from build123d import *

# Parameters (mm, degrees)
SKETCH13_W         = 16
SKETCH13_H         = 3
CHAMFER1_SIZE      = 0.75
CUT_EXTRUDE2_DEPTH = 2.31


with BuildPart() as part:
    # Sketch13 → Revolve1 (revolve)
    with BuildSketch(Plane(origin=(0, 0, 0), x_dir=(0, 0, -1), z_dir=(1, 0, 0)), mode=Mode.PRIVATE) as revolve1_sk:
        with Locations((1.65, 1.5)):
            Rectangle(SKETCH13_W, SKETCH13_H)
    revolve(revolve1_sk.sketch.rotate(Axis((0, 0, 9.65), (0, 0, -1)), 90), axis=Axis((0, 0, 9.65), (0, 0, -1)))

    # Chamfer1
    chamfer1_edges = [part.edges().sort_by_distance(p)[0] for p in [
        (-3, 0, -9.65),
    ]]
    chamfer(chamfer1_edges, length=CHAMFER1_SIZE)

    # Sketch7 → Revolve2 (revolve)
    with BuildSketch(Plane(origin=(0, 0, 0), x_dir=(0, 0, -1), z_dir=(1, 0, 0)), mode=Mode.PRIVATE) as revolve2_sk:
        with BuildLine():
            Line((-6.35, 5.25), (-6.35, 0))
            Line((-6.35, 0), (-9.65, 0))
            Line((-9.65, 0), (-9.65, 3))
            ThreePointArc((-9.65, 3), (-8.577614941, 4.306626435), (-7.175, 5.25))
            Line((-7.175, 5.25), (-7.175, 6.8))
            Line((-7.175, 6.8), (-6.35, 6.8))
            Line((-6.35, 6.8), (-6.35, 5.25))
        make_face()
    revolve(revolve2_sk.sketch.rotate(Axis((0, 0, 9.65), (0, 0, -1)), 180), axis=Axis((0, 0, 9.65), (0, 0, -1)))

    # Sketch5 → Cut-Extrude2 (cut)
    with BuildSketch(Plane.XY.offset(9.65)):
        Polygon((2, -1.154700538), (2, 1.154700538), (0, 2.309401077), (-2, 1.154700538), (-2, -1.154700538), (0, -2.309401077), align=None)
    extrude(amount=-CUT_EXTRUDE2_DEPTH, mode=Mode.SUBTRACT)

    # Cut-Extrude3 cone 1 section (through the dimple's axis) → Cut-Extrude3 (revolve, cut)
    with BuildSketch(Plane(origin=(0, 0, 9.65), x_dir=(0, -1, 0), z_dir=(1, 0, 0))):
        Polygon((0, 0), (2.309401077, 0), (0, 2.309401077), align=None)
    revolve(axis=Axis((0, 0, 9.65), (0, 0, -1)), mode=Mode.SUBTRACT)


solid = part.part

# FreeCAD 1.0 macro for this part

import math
import FreeCAD as App
import Part
import Sketcher

V = App.Vector
Q = App.Units.Quantity


def edges_at(feature, points):
    """Names of the edges that pass closest to the given points."""
    edges = feature.Shape.Edges
    near = lambda p: min(range(len(edges)), key=lambda i: edges[i].distToShape(Part.Vertex(*p))[0])
    return sorted({f"Edge{near(p) + 1}" for p in points})


def add_polygon(sketch, points):
    """Adds a closed chain of lines whose ends are joined by coincident constraints."""
    first, n = sketch.GeometryCount, len(points)
    for a, b in zip(points, points[1:] + points[:1]):
        sketch.addGeometry(Part.LineSegment(App.Vector(*a, 0), App.Vector(*b, 0)), False)
    for i in range(n):
        sketch.addConstraint(Sketcher.Constraint("Coincident", first + i, 2, first + (i + 1) % n, 1))

doc = App.newDocument("Part")
body = doc.addObject("PartDesign::Body", "Body")

sketch1 = doc.addObject("Sketcher::SketchObject", "Sketch")
body.addObject(sketch1)
sketch1.AttachmentSupport = (doc.YZ_Plane, [""])
sketch1.MapMode = "FlatFace"
add_polygon(sketch1, [(3, 6.3), (0, 6.3), (0, -9.7), (3, -9.7)])
sketch1.addConstraint([
    Sketcher.Constraint("Horizontal", 0),
    Sketcher.Constraint("Vertical", 1),
    Sketcher.Constraint("Horizontal", 2),
    Sketcher.Constraint("Vertical", 3),
    Sketcher.Constraint("PointOnObject", 0, 2, -2),
    Sketcher.Constraint("DistanceX", 0, 2, 0, 1, 3.0),
    Sketcher.Constraint("DistanceY", 1, 2, 1, 1, 16.0),
    Sketcher.Constraint("DistanceY", -1, 1, 0, 2, 6.35),
])
revolution = doc.addObject("PartDesign::Revolution", "Revolution")
body.addObject(revolution)
revolution.Profile = sketch1
revolution.ReferenceAxis = (sketch1, ["V_Axis"])
revolution.Angle = 360
doc.recompute()

chamfer = doc.addObject("PartDesign::Chamfer", "Chamfer")
body.addObject(chamfer)
chamfer.Base = (revolution, edges_at(revolution, [(-3, 0, -9.65)]))
chamfer.Size = 0.75

sketch2 = doc.addObject("Sketcher::SketchObject", "Sketch001")
body.addObject(sketch2)
sketch2.AttachmentSupport = (doc.YZ_Plane, [""])
sketch2.MapMode = "FlatFace"
sketch2.addGeometry([
    Part.LineSegment(V(0, 9.7, 0), V(0, 6.3, 0)),
    Part.LineSegment(V(0, 6.3, 0), V(6.8, 6.3, 0)),
    Part.LineSegment(V(6.8, 6.3, 0), V(6.8, 7.2, 0)),
    Part.LineSegment(V(6.8, 7.2, 0), V(5.2, 7.2, 0)),
    Part.ArcOfCircle(Part.Circle(V(0, 4.7, 0), V(0, 0, 1), 5.8), math.radians(26), math.radians(59)),
    Part.LineSegment(V(3, 9.7, 0), V(0, 9.7, 0)),
], False)
sketch2.addConstraint([
    Sketcher.Constraint("Coincident", 0, 2, 1, 1),
    Sketcher.Constraint("Coincident", 1, 2, 2, 1),
    Sketcher.Constraint("Coincident", 2, 2, 3, 1),
    Sketcher.Constraint("Coincident", 3, 2, 4, 1),
    Sketcher.Constraint("Coincident", 4, 2, 5, 1),
    Sketcher.Constraint("Coincident", 5, 2, 0, 1),
    Sketcher.Constraint("Vertical", 0),
    Sketcher.Constraint("Horizontal", 1),
    Sketcher.Constraint("Vertical", 2),
    Sketcher.Constraint("Horizontal", 3),
    Sketcher.Constraint("Horizontal", 5),
    Sketcher.Constraint("PointOnObject", 4, 3, -2),
    Sketcher.Constraint("PointOnObject", 0, 2, -2),
    Sketcher.Constraint("DistanceX", 5, 2, 5, 1, 3.0),
    Sketcher.Constraint("DistanceX", 1, 1, 1, 2, 6.8),
    Sketcher.Constraint("DistanceY", 0, 2, 0, 1, 3.3),
    Sketcher.Constraint("DistanceX", 3, 2, 3, 1, 1.55),
    Sketcher.Constraint("DistanceY", 2, 1, 2, 2, 0.825),
    Sketcher.Constraint("DistanceY", -1, 1, 0, 2, 6.35),
])
revolution2 = doc.addObject("PartDesign::Revolution", "Revolution001")
body.addObject(revolution2)
revolution2.Profile = sketch2
revolution2.ReferenceAxis = (sketch2, ["V_Axis"])
revolution2.Angle = 360

sketch3 = doc.addObject("Sketcher::SketchObject", "Sketch002")
body.addObject(sketch3)
sketch3.AttachmentSupport = (doc.XY_Plane, [""])
sketch3.MapMode = "FlatFace"
sketch3.AttachmentOffset = App.Placement(V(0, 0, 9.65), App.Rotation())
add_polygon(sketch3, [(2, -1.2), (2, 1.2), (0, 2.3), (-2, 1.2), (-2, -1.2), (0, -2.3)])
sketch3.addConstraint([
    Sketcher.Constraint("Vertical", 0),
    Sketcher.Constraint("Vertical", 3),
    Sketcher.Constraint("Symmetric", 0, 2, 3, 2, -1, 1),
    Sketcher.Constraint("Symmetric", 1, 2, 4, 2, -1, 1),
    Sketcher.Constraint("PointOnObject", 1, 2, -2),
    Sketcher.Constraint("Parallel", 2, 5),
    Sketcher.Constraint("Horizontal", 0, 2, 2, 2),
    Sketcher.Constraint("Angle", 1, Q("150 deg")),
    Sketcher.Constraint("DistanceX", -1, 1, 0, 2, 2.0),
    Sketcher.Constraint("DistanceY", 0, 1, 0, 2, 2.309401),
])
pocket1 = doc.addObject("PartDesign::Pocket", "Pocket")
body.addObject(pocket1)
pocket1.Profile = sketch3
pocket1.Length = 2.31

sketch4 = doc.addObject("Sketcher::SketchObject", "Sketch003")
body.addObject(sketch4)
sketch4.AttachmentSupport = (doc.YZ_Plane, [""])
sketch4.MapMode = "FlatFace"
add_polygon(sketch4, [(0, 9.7), (-2.3, 9.7), (0, 7.3)])
sketch4.addConstraint([
    Sketcher.Constraint("Horizontal", 0),
    Sketcher.Constraint("Vertical", 2),
    Sketcher.Constraint("PointOnObject", 1, 2, -2),
    Sketcher.Constraint("Equal", 0, 2),
    Sketcher.Constraint("DistanceY", -1, 1, 0, 2, 9.65),
    Sketcher.Constraint("DistanceX", 0, 2, 0, 1, 2.309401),
])
groove = doc.addObject("PartDesign::Groove", "Groove")
body.addObject(groove)
groove.Profile = sketch4
groove.ReferenceAxis = (sketch4, ["V_Axis"])
groove.Angle = 360

doc.recompute()
